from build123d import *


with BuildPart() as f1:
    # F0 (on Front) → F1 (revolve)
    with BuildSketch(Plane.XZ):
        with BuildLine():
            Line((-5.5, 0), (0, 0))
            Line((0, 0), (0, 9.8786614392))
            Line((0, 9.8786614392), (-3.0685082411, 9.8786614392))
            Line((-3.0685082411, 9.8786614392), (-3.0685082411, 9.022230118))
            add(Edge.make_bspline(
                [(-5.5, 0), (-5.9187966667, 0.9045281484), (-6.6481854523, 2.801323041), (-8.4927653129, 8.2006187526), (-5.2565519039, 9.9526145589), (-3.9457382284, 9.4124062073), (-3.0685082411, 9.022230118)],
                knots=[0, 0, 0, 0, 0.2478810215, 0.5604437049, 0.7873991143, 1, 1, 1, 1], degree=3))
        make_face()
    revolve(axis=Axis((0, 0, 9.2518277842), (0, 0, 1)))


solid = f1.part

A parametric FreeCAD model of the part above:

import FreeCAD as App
import Part
import Sketcher
Q = App.Units.Quantity

doc = App.newDocument("Part")
body = doc.addObject("PartDesign::Body", "Body")

sketch1 = body.newObject("Sketcher::SketchObject", "Sketch")
sketch1.AttachmentSupport = (doc.getObject("XZ_Plane"), [""])
sketch1.MapMode = "FlatFace"
sketch1.addGeometry(Part.LineSegment(App.Vector(-5.5, 0, 0), App.Vector(0, 0, 0)), False)
sketch1.addGeometry(Part.LineSegment(App.Vector(0, 0, 0), App.Vector(0, 9.878661, 0)), False)
sketch1.addGeometry(Part.LineSegment(App.Vector(0, 9.878661, 0), App.Vector(-3.068508, 9.878661, 0)), False)
sketch1.addGeometry(Part.LineSegment(App.Vector(-3.068508, 9.878661, 0), App.Vector(-3.068508, 9.02223, 0)), False)
sketch1.addGeometry(Part.BSplineCurve([App.Vector(-5.5, 0, 0), App.Vector(-5.918797, 0.904528, 0), App.Vector(-6.648185, 2.801323, 0), App.Vector(-8.492765, 8.200619, 0), App.Vector(-5.256552, 9.952615, 0), App.Vector(-3.945738, 9.412406, 0), App.Vector(-3.068508, 9.02223, 0)], [4, 1, 1, 1, 4], [0, 0.247881021, 0.560443705, 0.787399114, 1], False, 3, [1, 1, 1, 1, 1, 1, 1], False), False)
sketch1.addConstraint(Sketcher.Constraint("Block", 4))
sketch1.addConstraint(Sketcher.Constraint("Coincident", 0, 2, 1, 1))
sketch1.addConstraint(Sketcher.Constraint("Coincident", 1, 2, 2, 1))
sketch1.addConstraint(Sketcher.Constraint("Coincident", 2, 2, 3, 1))
sketch1.addConstraint(Sketcher.Constraint("Coincident", 3, 2, 4, 2))
sketch1.addConstraint(Sketcher.Constraint("Coincident", 4, 1, 0, 1))
sketch1.addConstraint(Sketcher.Constraint("Horizontal", 0))
sketch1.addConstraint(Sketcher.Constraint("Vertical", 1))
sketch1.addConstraint(Sketcher.Constraint("Horizontal", 2))
sketch1.addConstraint(Sketcher.Constraint("Vertical", 3))
sketch1.addConstraint(Sketcher.Constraint("PointOnObject", 1, 2, -2))
sketch1.addConstraint(Sketcher.Constraint("DistanceY", 1, 1, 1, 2, Q("9.878661 mm")))
revolution = body.newObject("PartDesign::Revolution", "Revolution")
revolution.Profile = sketch1
revolution.ReferenceAxis = (sketch1, ["V_Axis"])
revolution.Angle = 360

doc.recompute()
